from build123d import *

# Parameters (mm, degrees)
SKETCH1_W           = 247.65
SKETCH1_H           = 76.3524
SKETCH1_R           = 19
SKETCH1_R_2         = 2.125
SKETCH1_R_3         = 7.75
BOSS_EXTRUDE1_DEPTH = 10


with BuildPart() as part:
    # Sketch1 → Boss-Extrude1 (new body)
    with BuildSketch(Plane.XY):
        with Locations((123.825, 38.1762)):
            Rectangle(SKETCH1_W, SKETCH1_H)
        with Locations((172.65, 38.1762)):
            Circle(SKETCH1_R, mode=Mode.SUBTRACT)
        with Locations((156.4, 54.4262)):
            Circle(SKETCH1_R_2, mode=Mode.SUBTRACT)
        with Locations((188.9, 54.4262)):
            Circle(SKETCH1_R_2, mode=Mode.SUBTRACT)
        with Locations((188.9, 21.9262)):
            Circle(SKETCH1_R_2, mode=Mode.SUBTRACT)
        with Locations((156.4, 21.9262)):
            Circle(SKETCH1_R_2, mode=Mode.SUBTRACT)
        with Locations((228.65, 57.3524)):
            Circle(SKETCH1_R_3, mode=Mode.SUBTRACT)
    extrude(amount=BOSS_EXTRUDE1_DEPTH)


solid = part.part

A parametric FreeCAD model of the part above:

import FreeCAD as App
import Part
import Sketcher
from FreeCAD import Vector


def add_polygon(sketch, points):
    """Adds a closed chain of lines whose ends are joined by coincident constraints."""
    first, n = sketch.GeometryCount, len(points)
    for a, b in zip(points, points[1:] + points[:1]):
        sketch.addGeometry(Part.LineSegment(App.Vector(*a, 0), App.Vector(*b, 0)), False)
    for i in range(n):
        sketch.addConstraint(Sketcher.Constraint("Coincident", first + i, 2, first + (i + 1) % n, 1))

doc = App.newDocument("Part")
params = doc.addObject("Spreadsheet::Sheet", "Params")
for row, (alias, value) in enumerate([
    ("sketch1_diameter", "38 mm"),
    ("sketch1_diameter2", "15.5 mm"),
    ("sketch1_diameter3", "4.25 mm"),
    ("sketch1_width", "247.65 mm"),
    ("pad1_length", "10 mm"),
], start=1):
    params.set(f"A{row}", alias)
    params.set(f"B{row}", "=" + value)
    params.setAlias(f"B{row}", alias)

body = doc.addObject("PartDesign::Body", "Body")

sketch1 = doc.addObject("Sketcher::SketchObject", "Sketch")
body.addObject(sketch1)
sketch1.AttachmentSupport = (doc.XY_Plane, [""])
sketch1.MapMode = "FlatFace"
add_polygon(sketch1, [(0, 76.4), (0, 0), (247.7, 0), (247.7, 76.4)])
sketch1.addGeometry(Part.Circle(Vector(156.4, 21.9, 0), Vector(0, 0, 1), 2.1), False)
sketch1.addGeometry(Part.Circle(Vector(188.9, 21.9, 0), Vector(0, 0, 1), 2.1), False)
sketch1.addGeometry(Part.Circle(Vector(172.7, 38.2, 0), Vector(0, 0, 1), 19), False)
sketch1.addGeometry(Part.Circle(Vector(156.4, 54.4, 0), Vector(0, 0, 1), 2.1), False)
sketch1.addGeometry(Part.Circle(Vector(188.9, 54.4, 0), Vector(0, 0, 1), 2.1), False)
sketch1.addGeometry(Part.Circle(Vector(228.7, 57.4, 0), Vector(0, 0, 1), 7.8), False)
sketch1.addConstraint([
    Sketcher.Constraint("Vertical", 0),
    Sketcher.Constraint("Horizontal", 1),
    Sketcher.Constraint("Vertical", 2),
    Sketcher.Constraint("Horizontal", 3),
    Sketcher.Constraint("Coincident", 0, 2, -1, 1),
    Sketcher.Constraint("Equal", 4, 5),
    Sketcher.Constraint("Equal", 5, 7),
    Sketcher.Constraint("Equal", 7, 8),
    Sketcher.Constraint("Horizontal", 4, 3, 5, 3),
    Sketcher.Constraint("Horizontal", 7, 3, 8, 3),
    Sketcher.Constraint("Vertical", 4, 3, 7, 3),
    Sketcher.Constraint("Vertical", 5, 3, 8, 3),
    Sketcher.Constraint("Diameter", 6, 38.0),
    Sketcher.Constraint("Diameter", 9, 15.5),
    Sketcher.Constraint("Diameter", 4, 4.25),
    Sketcher.Constraint("DistanceX", 6, 3, 9, 3, 56.0),
    Sketcher.Constraint("DistanceX", 9, 3, 1, 2, 19.0),
    Sketcher.Constraint("DistanceY", 9, 3, 2, 2, 19.0),
    Sketcher.Constraint("DistanceX", 1, 1, 1, 2, 247.65),
    Sketcher.Constraint("DistanceX", -1, 1, 4, 3, 156.4),
    Sketcher.Constraint("DistanceX", -1, 1, 5, 3, 188.9),
    Sketcher.Constraint("DistanceY", 4, 3, 7, 3, 32.5),
    Sketcher.Constraint("DistanceY", 4, 3, 6, 3, 16.25),
    Sketcher.Constraint("DistanceY", 0, 2, 0, 1, 76.3524),
    Sketcher.Constraint("DistanceY", -1, 1, 4, 3, 21.9262),
])
sketch1.setExpression("Constraints[16]", "Params.sketch1_diameter")
sketch1.setExpression("Constraints[17]", "Params.sketch1_diameter2")
sketch1.setExpression("Constraints[18]", "Params.sketch1_diameter3")
sketch1.setExpression("Constraints[22]", "Params.sketch1_width")
pad1 = doc.addObject("PartDesign::Pad", "Pad")
body.addObject(pad1)
pad1.Profile = sketch1
pad1.setExpression("Length", "Params.pad1_length")

doc.recompute()
